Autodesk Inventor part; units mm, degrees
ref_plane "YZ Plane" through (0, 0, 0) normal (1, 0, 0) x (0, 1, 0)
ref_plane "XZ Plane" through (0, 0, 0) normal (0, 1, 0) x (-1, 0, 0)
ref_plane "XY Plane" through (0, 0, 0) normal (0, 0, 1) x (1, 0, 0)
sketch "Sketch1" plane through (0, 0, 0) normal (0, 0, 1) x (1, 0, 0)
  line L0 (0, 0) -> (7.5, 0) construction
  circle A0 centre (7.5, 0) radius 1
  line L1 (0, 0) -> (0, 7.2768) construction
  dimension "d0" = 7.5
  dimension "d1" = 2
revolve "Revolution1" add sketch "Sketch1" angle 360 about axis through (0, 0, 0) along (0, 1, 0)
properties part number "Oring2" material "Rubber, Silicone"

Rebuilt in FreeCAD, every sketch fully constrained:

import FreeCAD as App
import Part
import Sketcher

V = App.Vector
Q = App.Units.Quantity

doc = App.newDocument("Part")
body = doc.addObject("PartDesign::Body", "Body")

sketch1 = body.newObject("Sketcher::SketchObject", "Sketch")
sketch1.AttachmentSupport = (doc.getObject("XY_Plane"), [""])
sketch1.MapMode = "FlatFace"
sketch1.addGeometry(Part.Circle(V(7.5, 0, 0), V(0, 0, 1), 1), False)
sketch1.addConstraint(Sketcher.Constraint("PointOnObject", 0, 3, -1))
sketch1.addConstraint(Sketcher.Constraint("Diameter", 0, Q("2 mm")))
sketch1.addConstraint(Sketcher.Constraint("DistanceX", -1, 1, 0, 3, Q("7.5 mm")))
revolution = body.newObject("PartDesign::Revolution", "Revolution")
revolution.Profile = sketch1
revolution.ReferenceAxis = (sketch1, ["V_Axis"])
revolution.Angle = 360

doc.recompute()
